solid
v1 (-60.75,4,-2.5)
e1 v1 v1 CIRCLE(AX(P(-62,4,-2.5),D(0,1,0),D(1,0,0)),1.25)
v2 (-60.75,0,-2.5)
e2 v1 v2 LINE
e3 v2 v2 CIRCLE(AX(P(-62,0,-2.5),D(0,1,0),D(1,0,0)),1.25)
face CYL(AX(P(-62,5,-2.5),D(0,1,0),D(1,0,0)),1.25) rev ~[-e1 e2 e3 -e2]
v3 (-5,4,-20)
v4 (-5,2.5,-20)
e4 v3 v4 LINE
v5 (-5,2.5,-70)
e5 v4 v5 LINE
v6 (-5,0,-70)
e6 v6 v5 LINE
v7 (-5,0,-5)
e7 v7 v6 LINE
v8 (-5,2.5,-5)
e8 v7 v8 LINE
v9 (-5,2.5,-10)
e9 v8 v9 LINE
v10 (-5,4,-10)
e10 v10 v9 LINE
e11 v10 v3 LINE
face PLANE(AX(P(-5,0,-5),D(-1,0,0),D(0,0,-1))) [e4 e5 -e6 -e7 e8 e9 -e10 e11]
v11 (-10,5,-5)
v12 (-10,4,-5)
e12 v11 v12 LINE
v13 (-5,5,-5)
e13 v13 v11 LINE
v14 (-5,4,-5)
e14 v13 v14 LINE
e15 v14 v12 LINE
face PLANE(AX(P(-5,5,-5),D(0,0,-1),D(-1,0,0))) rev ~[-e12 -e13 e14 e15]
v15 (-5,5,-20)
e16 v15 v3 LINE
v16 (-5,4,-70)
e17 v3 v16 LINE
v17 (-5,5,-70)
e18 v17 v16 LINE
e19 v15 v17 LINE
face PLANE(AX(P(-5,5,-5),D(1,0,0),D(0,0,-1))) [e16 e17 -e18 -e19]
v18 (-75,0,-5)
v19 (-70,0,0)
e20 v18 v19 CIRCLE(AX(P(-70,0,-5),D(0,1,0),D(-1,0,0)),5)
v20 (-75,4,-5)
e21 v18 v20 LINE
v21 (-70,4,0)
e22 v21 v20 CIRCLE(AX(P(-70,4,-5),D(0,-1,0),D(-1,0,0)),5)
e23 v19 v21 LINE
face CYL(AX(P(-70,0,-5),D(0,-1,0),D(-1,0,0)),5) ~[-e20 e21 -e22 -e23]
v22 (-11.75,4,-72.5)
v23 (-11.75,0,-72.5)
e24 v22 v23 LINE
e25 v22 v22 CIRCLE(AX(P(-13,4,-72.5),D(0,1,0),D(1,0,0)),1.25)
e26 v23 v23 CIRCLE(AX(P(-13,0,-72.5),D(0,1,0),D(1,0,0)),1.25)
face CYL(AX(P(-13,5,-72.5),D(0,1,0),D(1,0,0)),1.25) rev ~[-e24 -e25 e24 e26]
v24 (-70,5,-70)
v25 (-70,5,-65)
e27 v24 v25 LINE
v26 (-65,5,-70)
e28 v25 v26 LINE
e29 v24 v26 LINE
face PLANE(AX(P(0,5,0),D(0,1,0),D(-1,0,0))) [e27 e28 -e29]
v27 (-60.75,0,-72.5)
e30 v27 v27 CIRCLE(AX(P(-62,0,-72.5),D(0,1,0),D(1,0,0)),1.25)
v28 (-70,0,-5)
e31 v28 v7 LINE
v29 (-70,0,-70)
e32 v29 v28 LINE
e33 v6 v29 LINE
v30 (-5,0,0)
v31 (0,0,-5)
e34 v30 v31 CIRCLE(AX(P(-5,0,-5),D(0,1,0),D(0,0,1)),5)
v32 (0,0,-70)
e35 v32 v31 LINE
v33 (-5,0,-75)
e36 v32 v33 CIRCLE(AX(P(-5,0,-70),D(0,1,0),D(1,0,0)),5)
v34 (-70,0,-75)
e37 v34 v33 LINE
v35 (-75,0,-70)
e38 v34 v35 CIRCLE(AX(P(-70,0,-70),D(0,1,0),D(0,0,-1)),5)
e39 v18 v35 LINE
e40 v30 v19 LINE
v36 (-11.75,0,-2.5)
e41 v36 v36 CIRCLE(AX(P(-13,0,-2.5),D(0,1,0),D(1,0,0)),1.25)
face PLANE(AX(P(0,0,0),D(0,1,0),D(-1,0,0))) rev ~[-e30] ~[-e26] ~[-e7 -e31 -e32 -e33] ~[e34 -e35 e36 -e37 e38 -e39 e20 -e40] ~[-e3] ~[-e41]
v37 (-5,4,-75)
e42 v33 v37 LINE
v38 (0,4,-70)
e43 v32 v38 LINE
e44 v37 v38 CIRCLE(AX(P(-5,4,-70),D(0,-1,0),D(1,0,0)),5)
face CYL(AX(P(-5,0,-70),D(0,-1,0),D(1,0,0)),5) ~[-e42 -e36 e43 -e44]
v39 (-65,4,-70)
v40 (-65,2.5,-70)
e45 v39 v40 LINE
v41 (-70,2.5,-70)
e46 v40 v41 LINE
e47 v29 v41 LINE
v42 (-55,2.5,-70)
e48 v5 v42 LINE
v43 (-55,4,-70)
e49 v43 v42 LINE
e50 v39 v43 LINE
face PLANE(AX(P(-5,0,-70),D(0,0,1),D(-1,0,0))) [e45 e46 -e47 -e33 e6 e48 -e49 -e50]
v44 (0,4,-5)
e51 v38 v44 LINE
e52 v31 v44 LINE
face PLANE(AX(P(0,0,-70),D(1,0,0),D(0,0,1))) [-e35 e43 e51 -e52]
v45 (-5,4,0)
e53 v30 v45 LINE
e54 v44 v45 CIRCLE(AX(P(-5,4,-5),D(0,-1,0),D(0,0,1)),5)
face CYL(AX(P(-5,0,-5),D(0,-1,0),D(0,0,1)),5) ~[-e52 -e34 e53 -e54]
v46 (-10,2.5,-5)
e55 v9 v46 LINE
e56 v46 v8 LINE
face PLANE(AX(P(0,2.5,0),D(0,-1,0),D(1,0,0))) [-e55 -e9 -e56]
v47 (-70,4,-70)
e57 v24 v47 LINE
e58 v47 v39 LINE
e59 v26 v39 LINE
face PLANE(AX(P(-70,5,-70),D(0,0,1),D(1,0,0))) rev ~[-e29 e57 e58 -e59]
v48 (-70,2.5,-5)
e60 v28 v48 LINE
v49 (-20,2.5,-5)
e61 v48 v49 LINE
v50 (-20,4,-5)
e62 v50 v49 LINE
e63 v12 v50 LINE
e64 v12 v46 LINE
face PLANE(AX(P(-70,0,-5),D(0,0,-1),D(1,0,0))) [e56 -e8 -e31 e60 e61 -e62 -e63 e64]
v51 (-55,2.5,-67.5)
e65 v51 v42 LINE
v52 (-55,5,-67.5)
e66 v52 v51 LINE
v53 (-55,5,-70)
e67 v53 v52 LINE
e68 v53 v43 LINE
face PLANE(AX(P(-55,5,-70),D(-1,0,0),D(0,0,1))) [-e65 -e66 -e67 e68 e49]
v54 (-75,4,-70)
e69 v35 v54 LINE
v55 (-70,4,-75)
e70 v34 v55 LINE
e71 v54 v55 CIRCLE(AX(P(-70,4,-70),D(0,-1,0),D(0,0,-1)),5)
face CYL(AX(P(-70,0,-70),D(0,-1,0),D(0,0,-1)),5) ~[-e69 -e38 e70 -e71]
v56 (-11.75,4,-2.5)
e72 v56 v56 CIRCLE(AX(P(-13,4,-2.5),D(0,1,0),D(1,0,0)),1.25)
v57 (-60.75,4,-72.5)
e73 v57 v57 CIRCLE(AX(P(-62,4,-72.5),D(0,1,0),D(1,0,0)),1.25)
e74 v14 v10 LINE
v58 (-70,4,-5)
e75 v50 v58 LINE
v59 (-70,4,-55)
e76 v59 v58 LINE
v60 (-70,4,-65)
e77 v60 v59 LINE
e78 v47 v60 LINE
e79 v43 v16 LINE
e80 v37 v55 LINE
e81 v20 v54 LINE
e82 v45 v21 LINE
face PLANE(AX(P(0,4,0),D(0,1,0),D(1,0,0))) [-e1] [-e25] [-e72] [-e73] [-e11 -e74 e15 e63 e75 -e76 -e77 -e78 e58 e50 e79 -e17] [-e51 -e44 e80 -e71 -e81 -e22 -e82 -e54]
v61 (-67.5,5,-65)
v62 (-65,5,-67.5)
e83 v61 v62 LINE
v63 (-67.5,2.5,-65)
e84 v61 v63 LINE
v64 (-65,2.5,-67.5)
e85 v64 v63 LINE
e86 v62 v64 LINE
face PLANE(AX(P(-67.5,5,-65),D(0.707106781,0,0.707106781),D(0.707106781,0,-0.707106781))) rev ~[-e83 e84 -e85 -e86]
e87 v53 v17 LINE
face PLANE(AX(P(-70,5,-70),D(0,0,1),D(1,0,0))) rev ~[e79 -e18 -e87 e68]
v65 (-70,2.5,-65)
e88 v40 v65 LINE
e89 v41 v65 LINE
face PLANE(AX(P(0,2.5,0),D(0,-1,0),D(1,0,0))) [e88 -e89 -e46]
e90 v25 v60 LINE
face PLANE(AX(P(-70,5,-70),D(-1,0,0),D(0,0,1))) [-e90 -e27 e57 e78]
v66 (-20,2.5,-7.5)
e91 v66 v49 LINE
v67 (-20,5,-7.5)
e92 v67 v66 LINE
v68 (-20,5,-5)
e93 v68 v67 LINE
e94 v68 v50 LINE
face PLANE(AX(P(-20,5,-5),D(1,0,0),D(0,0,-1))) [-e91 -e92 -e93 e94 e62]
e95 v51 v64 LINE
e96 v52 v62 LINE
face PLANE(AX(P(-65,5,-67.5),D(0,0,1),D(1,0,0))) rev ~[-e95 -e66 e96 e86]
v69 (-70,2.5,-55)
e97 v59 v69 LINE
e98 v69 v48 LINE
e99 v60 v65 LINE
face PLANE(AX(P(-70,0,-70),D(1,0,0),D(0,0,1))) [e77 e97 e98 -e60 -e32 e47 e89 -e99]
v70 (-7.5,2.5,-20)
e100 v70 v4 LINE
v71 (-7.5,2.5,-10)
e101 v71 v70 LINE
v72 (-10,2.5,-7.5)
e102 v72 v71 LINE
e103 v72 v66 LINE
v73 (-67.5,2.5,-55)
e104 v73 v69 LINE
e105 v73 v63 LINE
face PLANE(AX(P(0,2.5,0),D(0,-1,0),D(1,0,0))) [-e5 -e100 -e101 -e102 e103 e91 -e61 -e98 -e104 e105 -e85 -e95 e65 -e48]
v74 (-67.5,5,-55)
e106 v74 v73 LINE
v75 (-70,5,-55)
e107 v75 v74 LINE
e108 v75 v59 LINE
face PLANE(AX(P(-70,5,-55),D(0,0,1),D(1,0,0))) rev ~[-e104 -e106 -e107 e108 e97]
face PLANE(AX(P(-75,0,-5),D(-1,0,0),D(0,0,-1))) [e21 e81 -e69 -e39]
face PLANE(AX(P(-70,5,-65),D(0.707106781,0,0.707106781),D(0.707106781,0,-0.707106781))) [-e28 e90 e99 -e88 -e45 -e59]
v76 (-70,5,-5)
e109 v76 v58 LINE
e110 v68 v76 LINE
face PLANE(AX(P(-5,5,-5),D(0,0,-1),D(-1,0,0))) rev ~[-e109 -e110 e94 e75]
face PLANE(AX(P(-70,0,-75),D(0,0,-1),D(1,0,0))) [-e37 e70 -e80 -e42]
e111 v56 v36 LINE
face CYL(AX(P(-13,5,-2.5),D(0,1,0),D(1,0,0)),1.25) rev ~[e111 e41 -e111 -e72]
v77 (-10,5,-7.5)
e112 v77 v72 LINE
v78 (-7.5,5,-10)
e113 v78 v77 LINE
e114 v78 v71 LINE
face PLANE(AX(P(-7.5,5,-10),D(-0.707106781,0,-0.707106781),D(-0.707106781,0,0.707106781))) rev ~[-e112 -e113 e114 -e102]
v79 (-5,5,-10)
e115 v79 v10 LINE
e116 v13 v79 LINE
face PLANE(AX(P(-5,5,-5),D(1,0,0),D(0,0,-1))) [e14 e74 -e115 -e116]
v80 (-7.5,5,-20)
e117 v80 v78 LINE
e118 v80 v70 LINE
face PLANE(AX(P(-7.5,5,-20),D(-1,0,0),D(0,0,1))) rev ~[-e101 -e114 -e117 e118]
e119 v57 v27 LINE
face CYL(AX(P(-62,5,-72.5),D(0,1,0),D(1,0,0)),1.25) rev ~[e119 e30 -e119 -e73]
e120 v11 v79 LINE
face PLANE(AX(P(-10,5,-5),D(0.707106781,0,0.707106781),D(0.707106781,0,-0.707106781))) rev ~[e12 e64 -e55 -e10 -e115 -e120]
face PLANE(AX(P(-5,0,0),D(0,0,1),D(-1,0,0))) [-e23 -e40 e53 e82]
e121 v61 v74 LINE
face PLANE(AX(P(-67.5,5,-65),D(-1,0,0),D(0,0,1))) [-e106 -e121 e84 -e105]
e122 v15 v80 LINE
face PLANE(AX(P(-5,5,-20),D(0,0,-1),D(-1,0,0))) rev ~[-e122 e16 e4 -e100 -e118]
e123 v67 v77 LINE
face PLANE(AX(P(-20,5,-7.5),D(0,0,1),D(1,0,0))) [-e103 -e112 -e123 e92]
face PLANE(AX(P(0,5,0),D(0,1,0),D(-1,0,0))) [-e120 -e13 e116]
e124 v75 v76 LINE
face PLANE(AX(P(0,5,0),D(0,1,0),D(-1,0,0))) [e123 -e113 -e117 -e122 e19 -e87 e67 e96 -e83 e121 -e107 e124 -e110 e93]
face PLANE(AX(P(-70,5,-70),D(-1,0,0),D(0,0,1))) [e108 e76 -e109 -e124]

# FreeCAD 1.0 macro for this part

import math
import FreeCAD as App
import Part
import Sketcher

V = App.Vector
Q = App.Units.Quantity


def add_polygon(sketch, points):
    """Adds a closed chain of lines whose ends are joined by coincident constraints."""
    first, n = sketch.GeometryCount, len(points)
    for a, b in zip(points, points[1:] + points[:1]):
        sketch.addGeometry(Part.LineSegment(App.Vector(*a, 0), App.Vector(*b, 0)), False)
    for i in range(n):
        sketch.addConstraint(Sketcher.Constraint("Coincident", first + i, 2, first + (i + 1) % n, 1))

doc = App.newDocument("Part")
body = doc.addObject("PartDesign::Body", "Body")

sketch1 = body.newObject("Sketcher::SketchObject", "Sketch")
sketch1.AttachmentSupport = (doc.getObject("XZ_Plane"), [""])
sketch1.MapMode = "FlatFace"
sketch1.addGeometry([
    Part.LineSegment(V(-70, 0, 0), V(-5, 0, 0)),
    Part.ArcOfCircle(Part.Circle(V(-5, -5, 0), V(0, 0, 1), 5), math.radians(0), math.radians(90)),
    Part.LineSegment(V(0, -5, 0), V(0, -70, 0)),
    Part.ArcOfCircle(Part.Circle(V(-5, -70, 0), V(0, 0, 1), 5), math.radians(-90), math.radians(0)),
    Part.LineSegment(V(-5, -75, 0), V(-70, -75, 0)),
    Part.ArcOfCircle(Part.Circle(V(-70, -70, 0), V(0, 0, 1), 5), math.radians(180), math.radians(270)),
    Part.LineSegment(V(-75, -70, 0), V(-75, -5, 0)),
    Part.ArcOfCircle(Part.Circle(V(-70, -5, 0), V(0, 0, 1), 5), math.radians(90), math.radians(180)),
], False)
sketch1.addConstraint([
    Sketcher.Constraint("Tangent", 0, 2, 1, 2),
    Sketcher.Constraint("Tangent", 1, 1, 2, 1),
    Sketcher.Constraint("Tangent", 2, 2, 3, 2),
    Sketcher.Constraint("Tangent", 3, 1, 4, 1),
    Sketcher.Constraint("Tangent", 4, 2, 5, 2),
    Sketcher.Constraint("Tangent", 5, 1, 6, 1),
    Sketcher.Constraint("Tangent", 6, 2, 7, 2),
    Sketcher.Constraint("Tangent", 7, 1, 0, 1),
    Sketcher.Constraint("Horizontal", 0),
    Sketcher.Constraint("Vertical", 2),
    Sketcher.Constraint("Horizontal", 4),
    Sketcher.Constraint("Vertical", 6),
    Sketcher.Constraint("Equal", 1, 3),
    Sketcher.Constraint("Equal", 3, 5),
    Sketcher.Constraint("Equal", 5, 7),
    Sketcher.Constraint("PointOnObject", 0, 2, -1),
    Sketcher.Constraint("PointOnObject", 1, 1, -2),
    Sketcher.Constraint("Equal", 4, 2),
    Sketcher.Constraint("Radius", 1, Q("5 mm")),
    Sketcher.Constraint("DistanceY", 3, 1, -1, 1, Q("75 mm")),
])
pad1 = body.newObject("PartDesign::Pad", "Pad")
pad1.Profile = sketch1
pad1.Length = 5
pad1.Reversed = True

sketch2 = body.newObject("Sketcher::SketchObject", "Sketch001")
sketch2.AttachmentSupport = (doc.getObject("XZ_Plane"), [""])
sketch2.MapMode = "FlatFace"
sketch2.AttachmentOffset = App.Placement(V(0, 0, -5), App.Rotation())
sketch2.addGeometry([
    Part.Circle(V(-13, -2.5, 0), V(0, 0, 1), 1.2),
    Part.Circle(V(-62, -2.5, 0), V(0, 0, 1), 1.2),
    Part.Circle(V(-62, -72.5, 0), V(0, 0, 1), 1.2),
    Part.Circle(V(-13, -72.5, 0), V(0, 0, 1), 1.2),
], False)
sketch2.addConstraint([
    Sketcher.Constraint("Equal", 0, 1),
    Sketcher.Constraint("Equal", 1, 2),
    Sketcher.Constraint("Equal", 2, 3),
    Sketcher.Constraint("Horizontal", 0, 3, 1, 3),
    Sketcher.Constraint("Horizontal", 2, 3, 3, 3),
    Sketcher.Constraint("Vertical", 1, 3, 2, 3),
    Sketcher.Constraint("Vertical", 0, 3, 3, 3),
    Sketcher.Constraint("Diameter", 0, Q("2.5 mm")),
    Sketcher.Constraint("DistanceX", 0, 3, -1, 1, Q("13 mm")),
    Sketcher.Constraint("DistanceY", 0, 3, -1, 1, Q("2.5 mm")),
    Sketcher.Constraint("DistanceX", 1, 3, -1, 1, Q("62 mm")),
    Sketcher.Constraint("DistanceY", 2, 3, 1, 3, Q("70 mm")),
])
pocket1 = body.newObject("PartDesign::Pocket", "Pocket")
pocket1.Profile = sketch2
pocket1.Type = "ThroughAll"
pocket1.Reversed = True

sketch3 = body.newObject("Sketcher::SketchObject", "Sketch002")
sketch3.AttachmentSupport = (doc.getObject("XZ_Plane"), [""])
sketch3.MapMode = "FlatFace"
add_polygon(sketch3, [(-70, -70), (-5, -70), (-5, -5), (-70, -5)])
sketch3.addConstraint([
    Sketcher.Constraint("Horizontal", 0),
    Sketcher.Constraint("Vertical", 1),
    Sketcher.Constraint("Horizontal", 2),
    Sketcher.Constraint("Vertical", 3),
    Sketcher.Constraint("Equal", 2, 1),
    Sketcher.Constraint("DistanceX", 0, 1, 0, 2, Q("65 mm")),
    Sketcher.Constraint("DistanceX", 0, 2, -1, 1, Q("5 mm")),
    Sketcher.Constraint("DistanceY", 1, 2, -1, 1, Q("5 mm")),
])
pocket2 = body.newObject("PartDesign::Pocket", "Pocket001")
pocket2.Profile = sketch3
pocket2.Length = 2.5

sketch4 = body.newObject("Sketcher::SketchObject", "Sketch003")
sketch4.AttachmentSupport = (doc.getObject("XZ_Plane"), [""])
sketch4.MapMode = "FlatFace"
sketch4.AttachmentOffset = App.Placement(V(0, 0, -5), App.Rotation())
add_polygon(sketch4, [(-10, -5), (-5, -10), (-5, -20), (-7.5, -20), (-7.5, -10), (-10, -7.5), (-20, -7.5), (-20, -5)])
sketch4.addConstraint([
    Sketcher.Constraint("Vertical", 1),
    Sketcher.Constraint("Horizontal", 2),
    Sketcher.Constraint("Vertical", 3),
    Sketcher.Constraint("Horizontal", 5),
    Sketcher.Constraint("Vertical", 6),
    Sketcher.Constraint("Horizontal", 7),
    Sketcher.Constraint("Parallel", 0, 4),
    Sketcher.Constraint("Horizontal", 0, 2, 3, 2),
    Sketcher.Constraint("Vertical", 4, 2, 7, 2),
    Sketcher.Constraint("Equal", 7, 1),
    Sketcher.Constraint("Equal", 2, 6),
    Sketcher.Constraint("DistanceX", 5, 2, 5, 1, Q("10 mm")),
    Sketcher.Constraint("DistanceX", 2, 2, 2, 1, Q("2.5 mm")),
    Sketcher.Constraint("DistanceY", 0, 2, -1, 1, Q("10 mm")),
    Sketcher.Constraint("DistanceX", 4, 2, -1, 1, Q("10 mm")),
    Sketcher.Constraint("DistanceX", 4, 2, 3, 2, Q("2.5 mm")),
])
pocket3 = body.newObject("PartDesign::Pocket", "Pocket002")
pocket3.Profile = sketch4
pocket3.Type = "ThroughAll"
pocket3.Reversed = True

sketch5 = body.newObject("Sketcher::SketchObject", "Sketch004")
sketch5.AttachmentSupport = (doc.getObject("XZ_Plane"), [""])
sketch5.MapMode = "FlatFace"
sketch5.AttachmentOffset = App.Placement(V(0, 0, -5), App.Rotation())
add_polygon(sketch5, [(-55, -67.5), (-55, -70), (-65, -70), (-70, -65), (-70, -55), (-67.5, -55), (-67.5, -65), (-65, -67.5)])
sketch5.addConstraint([
    Sketcher.Constraint("Vertical", 0),
    Sketcher.Constraint("Horizontal", 1),
    Sketcher.Constraint("Vertical", 3),
    Sketcher.Constraint("Horizontal", 4),
    Sketcher.Constraint("Vertical", 5),
    Sketcher.Constraint("Horizontal", 7),
    Sketcher.Constraint("Parallel", 2, 6),
    Sketcher.Constraint("Horizontal", 2, 2, 5, 2),
    Sketcher.Constraint("Vertical", 1, 2, 6, 2),
    Sketcher.Constraint("Equal", 4, 0),
    Sketcher.Constraint("Equal", 7, 3),
    Sketcher.Constraint("DistanceX", 1, 2, 1, 1, Q("10 mm")),
    Sketcher.Constraint("DistanceX", 4, 1, 4, 2, Q("2.5 mm")),
    Sketcher.Constraint("DistanceX", 0, 2, -1, 1, Q("55 mm")),
    Sketcher.Constraint("DistanceY", 0, 2, -1, 1, Q("70 mm")),
    Sketcher.Constraint("DistanceX", 2, 2, -1, 1, Q("70 mm")),
])
pocket4 = body.newObject("PartDesign::Pocket", "Pocket003")
pocket4.Profile = sketch5
pocket4.Type = "ThroughAll"
pocket4.Reversed = True

sketch6 = body.newObject("Sketcher::SketchObject", "Sketch005")
sketch6.AttachmentSupport = (doc.getObject("XZ_Plane"), [""])
sketch6.MapMode = "FlatFace"
sketch6.AttachmentOffset = App.Placement(V(0, 0, -5), App.Rotation())
add_polygon(sketch6, [(-75, -75), (-75, 0), (0, 0), (0, -75)])
add_polygon(sketch6, [(-70, -70), (-5, -70), (-5, -5), (-70, -5)])
sketch6.addConstraint([
    Sketcher.Constraint("Vertical", 0),
    Sketcher.Constraint("Horizontal", 1),
    Sketcher.Constraint("Vertical", 2),
    Sketcher.Constraint("Horizontal", 3),
    Sketcher.Constraint("Horizontal", 4),
    Sketcher.Constraint("Vertical", 5),
    Sketcher.Constraint("Horizontal", 6),
    Sketcher.Constraint("Vertical", 7),
    Sketcher.Constraint("Coincident", 1, 2, -1, 1),
    Sketcher.Constraint("Equal", 3, 0),
    Sketcher.Constraint("Equal", 6, 5),
    Sketcher.Constraint("DistanceX", 1, 1, 1, 2, Q("75 mm")),
    Sketcher.Constraint("DistanceX", 4, 1, 4, 2, Q("65 mm")),
    Sketcher.Constraint("DistanceX", 4, 2, -1, 1, Q("5 mm")),
    Sketcher.Constraint("DistanceY", 4, 2, -1, 1, Q("70 mm")),
])
pocket5 = body.newObject("PartDesign::Pocket", "Pocket004")
pocket5.Profile = sketch6
pocket5.Length = 1
pocket5.Reversed = True

doc.recompute()
